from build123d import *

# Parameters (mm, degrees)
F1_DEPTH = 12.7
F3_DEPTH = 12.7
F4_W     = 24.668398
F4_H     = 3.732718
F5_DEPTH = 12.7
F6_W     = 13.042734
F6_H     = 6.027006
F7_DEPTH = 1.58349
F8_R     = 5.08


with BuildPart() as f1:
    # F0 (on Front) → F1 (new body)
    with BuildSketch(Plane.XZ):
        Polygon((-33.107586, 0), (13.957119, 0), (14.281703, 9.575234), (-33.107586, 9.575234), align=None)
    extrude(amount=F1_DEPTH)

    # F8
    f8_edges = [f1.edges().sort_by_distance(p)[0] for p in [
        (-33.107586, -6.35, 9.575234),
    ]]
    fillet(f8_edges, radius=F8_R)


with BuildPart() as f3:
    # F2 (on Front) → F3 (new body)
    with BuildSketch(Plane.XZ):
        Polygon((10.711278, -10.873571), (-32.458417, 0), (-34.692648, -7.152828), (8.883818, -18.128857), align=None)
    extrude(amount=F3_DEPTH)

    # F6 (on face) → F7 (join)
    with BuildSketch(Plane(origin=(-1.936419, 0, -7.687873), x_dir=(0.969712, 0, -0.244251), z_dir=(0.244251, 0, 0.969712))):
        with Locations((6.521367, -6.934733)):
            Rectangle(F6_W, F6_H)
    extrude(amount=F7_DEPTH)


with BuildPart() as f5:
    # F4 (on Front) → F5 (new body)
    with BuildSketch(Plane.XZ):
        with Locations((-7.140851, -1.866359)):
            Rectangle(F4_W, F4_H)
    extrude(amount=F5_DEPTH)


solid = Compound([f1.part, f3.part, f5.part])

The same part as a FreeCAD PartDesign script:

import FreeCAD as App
import Part
import Sketcher
Q = App.Units.Quantity


def edges_at(feature, points):
    """Names of the edges that pass closest to the given points."""
    edges = feature.Shape.Edges
    near = lambda p: min(range(len(edges)), key=lambda i: edges[i].distToShape(Part.Vertex(*p))[0])
    return sorted({f"Edge{near(p) + 1}" for p in points})


def add_polygon(sketch, points):
    """Adds a closed chain of lines whose ends are joined by coincident constraints."""
    first, n = sketch.GeometryCount, len(points)
    for a, b in zip(points, points[1:] + points[:1]):
        sketch.addGeometry(Part.LineSegment(App.Vector(*a, 0), App.Vector(*b, 0)), False)
    for i in range(n):
        sketch.addConstraint(Sketcher.Constraint("Coincident", first + i, 2, first + (i + 1) % n, 1))

doc = App.newDocument("Part")
body = doc.addObject("PartDesign::Body", "Body")

# Sketch on XZ plane
sketch1 = body.newObject("Sketcher::SketchObject", "Sketch")
sketch1.AttachmentSupport = (doc.getObject("XZ_Plane"), [""])
sketch1.MapMode = "FlatFace"
add_polygon(sketch1, [(-33.107586, 0), (13.957119, 0), (14.281703, 9.575234), (-33.107586, 9.575234)])  # lines 0-3
sketch1.addConstraint(Sketcher.Constraint("Horizontal", 0))
sketch1.addConstraint(Sketcher.Constraint("Horizontal", 2))
sketch1.addConstraint(Sketcher.Constraint("Vertical", 3))
sketch1.addConstraint(Sketcher.Constraint("PointOnObject", 0, 2, -1))
sketch1.addConstraint(Sketcher.Constraint("DistanceX", 2, 2, 2, 1, Q("47.389289 mm")))
sketch1.addConstraint(Sketcher.Constraint("DistanceX", 0, 1, 0, 2, Q("47.064705 mm")))
sketch1.addConstraint(Sketcher.Constraint("DistanceY", 3, 2, 3, 1, Q("9.575234 mm")))
sketch1.addConstraint(Sketcher.Constraint("DistanceX", -1, 1, 0, 2, Q("13.957119 mm")))
pad1 = body.newObject("PartDesign::Pad", "Pad")
pad1.Profile = sketch1
pad1.Length = Q("0.5 in")
doc.recompute()

fillet = body.newObject("PartDesign::Fillet", "Fillet")
fillet.Base = (pad1, edges_at(pad1, [(-33.108, -6.35, 9.575)]))
fillet.Radius = Q("0.2 in")
body2 = doc.addObject("PartDesign::Body", "Body001")

# Sketch on XZ plane
sketch2 = body2.newObject("Sketcher::SketchObject", "Sketch001")
sketch2.AttachmentSupport = (doc.getObject("XZ_Plane001"), [""])
sketch2.MapMode = "FlatFace"
add_polygon(sketch2, [(10.711278, -10.873571), (-32.458417, 0), (-34.692648, -7.152828), (8.883818, -18.128857)])  # lines 0-3
sketch2.addConstraint(Sketcher.Constraint("PointOnObject", 0, 2, -1))
sketch2.addConstraint(Sketcher.Constraint("Parallel", 0, 2))
sketch2.addConstraint(Sketcher.Constraint("Perpendicular", 2, 3))
sketch2.addConstraint(Sketcher.Constraint("Distance", 2, Q("44.93753 mm")))
sketch2.addConstraint(Sketcher.Constraint("DistanceY", 1, 2, -1, 1, Q("7.152828 mm")))
sketch2.addConstraint(Sketcher.Constraint("DistanceY", 3, 2, -1, 1, Q("10.873571 mm")))
sketch2.addConstraint(Sketcher.Constraint("DistanceX", 1, 2, 0, 2, Q("2.234231 mm")))
sketch2.addConstraint(Sketcher.Constraint("DistanceX", 0, 2, -1, 1, Q("32.458417 mm")))
pad2 = body2.newObject("PartDesign::Pad", "Pad001")
pad2.Profile = sketch2
pad2.Length = Q("0.5 in")

# Sketch on an angled plane
sketch3 = body2.newObject("Sketcher::SketchObject", "Sketch002")
sketch3.Placement = App.Placement(App.Vector(-1.936419, 0, -7.687873), App.Rotation(App.Vector(0.969712042, 0, -0.244251011), App.Vector(0, 1.000000001, 0), App.Vector(0.244251011, 0, 0.969712042), "ZXY"))
add_polygon(sketch3, [(0, -3.92123), (0, -9.948236), (13.042734, -9.948236), (13.042734, -3.92123)])  # lines 0-3
sketch3.addConstraint(Sketcher.Constraint("Vertical", 0))
sketch3.addConstraint(Sketcher.Constraint("Horizontal", 1))
sketch3.addConstraint(Sketcher.Constraint("Vertical", 2))
sketch3.addConstraint(Sketcher.Constraint("Horizontal", 3))
sketch3.addConstraint(Sketcher.Constraint("PointOnObject", 0, 2, -2))
sketch3.addConstraint(Sketcher.Constraint("DistanceX", 1, 1, 1, 2, Q("13.042734 mm")))
sketch3.addConstraint(Sketcher.Constraint("DistanceY", 0, 2, 0, 1, Q("6.027006 mm")))
sketch3.addConstraint(Sketcher.Constraint("DistanceY", 2, 2, -1, 1, Q("3.92123 mm")))
pad3 = body2.newObject("PartDesign::Pad", "Pad002")
pad3.Profile = sketch3
pad3.Length = 1.58349
body3 = doc.addObject("PartDesign::Body", "Body002")

# Sketch on XZ plane
sketch4 = body3.newObject("Sketcher::SketchObject", "Sketch003")
sketch4.AttachmentSupport = (doc.getObject("XZ_Plane002"), [""])
sketch4.MapMode = "FlatFace"
add_polygon(sketch4, [(-19.47505, 0), (-19.47505, -3.732718), (5.193348, -3.732718), (5.193348, 0)])  # lines 0-3
sketch4.addConstraint(Sketcher.Constraint("Vertical", 0))
sketch4.addConstraint(Sketcher.Constraint("Horizontal", 1))
sketch4.addConstraint(Sketcher.Constraint("Vertical", 2))
sketch4.addConstraint(Sketcher.Constraint("Horizontal", 3))
sketch4.addConstraint(Sketcher.Constraint("PointOnObject", 2, 2, -1))
sketch4.addConstraint(Sketcher.Constraint("DistanceX", 1, 1, 1, 2, Q("24.668398 mm")))
sketch4.addConstraint(Sketcher.Constraint("DistanceY", 0, 2, 0, 1, Q("3.732718 mm")))
sketch4.addConstraint(Sketcher.Constraint("DistanceX", 0, 2, -1, 1, Q("19.47505 mm")))
pad4 = body3.newObject("PartDesign::Pad", "Pad003")
pad4.Profile = sketch4
pad4.Length = Q("0.5 in")

doc.recompute()
